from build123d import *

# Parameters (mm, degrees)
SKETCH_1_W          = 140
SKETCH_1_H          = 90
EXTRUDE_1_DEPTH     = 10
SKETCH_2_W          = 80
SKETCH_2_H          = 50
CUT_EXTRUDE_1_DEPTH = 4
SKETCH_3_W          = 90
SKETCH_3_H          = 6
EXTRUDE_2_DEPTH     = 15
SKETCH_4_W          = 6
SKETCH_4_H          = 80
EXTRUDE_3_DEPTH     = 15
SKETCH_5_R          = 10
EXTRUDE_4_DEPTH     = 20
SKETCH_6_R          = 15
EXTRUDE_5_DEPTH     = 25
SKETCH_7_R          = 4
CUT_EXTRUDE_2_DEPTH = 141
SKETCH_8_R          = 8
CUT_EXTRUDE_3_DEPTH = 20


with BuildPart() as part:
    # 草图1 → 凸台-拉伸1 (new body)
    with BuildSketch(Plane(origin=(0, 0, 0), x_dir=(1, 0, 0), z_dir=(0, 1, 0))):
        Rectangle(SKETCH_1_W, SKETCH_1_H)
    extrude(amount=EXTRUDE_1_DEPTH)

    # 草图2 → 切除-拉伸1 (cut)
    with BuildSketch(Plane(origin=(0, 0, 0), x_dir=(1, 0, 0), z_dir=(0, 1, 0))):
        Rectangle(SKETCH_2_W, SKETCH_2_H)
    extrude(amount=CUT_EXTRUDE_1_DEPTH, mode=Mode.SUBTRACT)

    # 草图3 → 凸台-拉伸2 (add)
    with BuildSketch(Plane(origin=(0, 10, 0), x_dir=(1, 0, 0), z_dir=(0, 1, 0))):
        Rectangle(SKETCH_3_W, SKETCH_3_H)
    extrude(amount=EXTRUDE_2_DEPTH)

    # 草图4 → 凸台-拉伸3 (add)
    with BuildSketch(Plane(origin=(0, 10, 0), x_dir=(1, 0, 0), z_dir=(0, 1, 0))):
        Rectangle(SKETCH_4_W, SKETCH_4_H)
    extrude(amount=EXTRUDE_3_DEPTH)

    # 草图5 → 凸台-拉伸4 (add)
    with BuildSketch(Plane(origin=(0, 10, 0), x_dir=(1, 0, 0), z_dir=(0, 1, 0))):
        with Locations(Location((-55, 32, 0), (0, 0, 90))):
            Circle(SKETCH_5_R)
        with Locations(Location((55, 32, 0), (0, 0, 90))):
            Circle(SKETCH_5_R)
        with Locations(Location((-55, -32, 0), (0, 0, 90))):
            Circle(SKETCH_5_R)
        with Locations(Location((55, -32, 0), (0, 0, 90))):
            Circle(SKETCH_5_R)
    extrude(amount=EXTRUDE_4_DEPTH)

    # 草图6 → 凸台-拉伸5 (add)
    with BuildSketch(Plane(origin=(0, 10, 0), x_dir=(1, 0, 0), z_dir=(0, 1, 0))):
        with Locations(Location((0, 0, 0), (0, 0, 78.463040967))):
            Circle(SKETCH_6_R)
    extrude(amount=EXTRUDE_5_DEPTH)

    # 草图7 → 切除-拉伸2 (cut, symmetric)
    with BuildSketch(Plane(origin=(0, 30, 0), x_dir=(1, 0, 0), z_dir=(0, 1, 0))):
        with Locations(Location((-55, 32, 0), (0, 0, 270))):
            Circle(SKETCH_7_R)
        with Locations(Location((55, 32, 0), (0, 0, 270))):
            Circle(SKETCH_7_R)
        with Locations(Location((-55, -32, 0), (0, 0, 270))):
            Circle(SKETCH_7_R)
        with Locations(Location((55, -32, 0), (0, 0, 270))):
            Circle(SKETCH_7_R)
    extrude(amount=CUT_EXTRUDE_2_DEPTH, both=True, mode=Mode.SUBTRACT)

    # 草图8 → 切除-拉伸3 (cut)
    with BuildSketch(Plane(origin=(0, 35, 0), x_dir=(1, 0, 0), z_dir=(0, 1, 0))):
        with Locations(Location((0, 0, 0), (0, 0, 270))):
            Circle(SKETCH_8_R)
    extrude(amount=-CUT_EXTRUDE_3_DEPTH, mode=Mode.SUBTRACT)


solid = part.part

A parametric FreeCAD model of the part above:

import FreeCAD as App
import Part
import Sketcher
from FreeCAD import Vector

doc = App.newDocument("Part")
body = doc.addObject("PartDesign::Body", "Body")

sketch1 = doc.addObject("Sketcher::SketchObject", "Sketch")
body.addObject(sketch1)
sketch1.AttachmentSupport = (doc.XZ_Plane, [""])
sketch1.MapMode = "FlatFace"
sketch1.addGeometry([
    Part.LineSegment(Vector(-70, -45, 0), Vector(-70, 45, 0)),
    Part.LineSegment(Vector(-70, 45, 0), Vector(70, 45, 0)),
    Part.LineSegment(Vector(70, 45, 0), Vector(70, -45, 0)),
    Part.LineSegment(Vector(70, -45, 0), Vector(-70, -45, 0)),
], False)
sketch1.addConstraint([
    Sketcher.Constraint("Coincident", 0, 2, 1, 1),
    Sketcher.Constraint("Coincident", 1, 2, 2, 1),
    Sketcher.Constraint("Coincident", 2, 2, 3, 1),
    Sketcher.Constraint("Coincident", 3, 2, 0, 1),
    Sketcher.Constraint("Vertical", 0),
    Sketcher.Constraint("Horizontal", 1),
    Sketcher.Constraint("Vertical", 2),
    Sketcher.Constraint("Horizontal", 3),
    Sketcher.Constraint("Symmetric", 0, 2, 2, 2, -1, 1),
    Sketcher.Constraint("DistanceX", 1, 1, 1, 2, 140.0),
    Sketcher.Constraint("DistanceY", 0, 1, 0, 2, 90.0),
])
pad1 = doc.addObject("PartDesign::Pad", "Pad")
body.addObject(pad1)
pad1.Profile = sketch1
pad1.Length = 10
pad1.Reversed = True

sketch2 = doc.addObject("Sketcher::SketchObject", "Sketch001")
body.addObject(sketch2)
sketch2.AttachmentSupport = (doc.XZ_Plane, [""])
sketch2.MapMode = "FlatFace"
sketch2.addGeometry([
    Part.LineSegment(Vector(-40, -25, 0), Vector(-40, 25, 0)),
    Part.LineSegment(Vector(-40, 25, 0), Vector(40, 25, 0)),
    Part.LineSegment(Vector(40, 25, 0), Vector(40, -25, 0)),
    Part.LineSegment(Vector(40, -25, 0), Vector(-40, -25, 0)),
], False)
sketch2.addConstraint([
    Sketcher.Constraint("Coincident", 0, 2, 1, 1),
    Sketcher.Constraint("Coincident", 1, 2, 2, 1),
    Sketcher.Constraint("Coincident", 2, 2, 3, 1),
    Sketcher.Constraint("Coincident", 3, 2, 0, 1),
    Sketcher.Constraint("Vertical", 0),
    Sketcher.Constraint("Horizontal", 1),
    Sketcher.Constraint("Vertical", 2),
    Sketcher.Constraint("Horizontal", 3),
    Sketcher.Constraint("Symmetric", 0, 2, 2, 2, -1, 1),
    Sketcher.Constraint("DistanceX", 1, 1, 1, 2, 80.0),
    Sketcher.Constraint("DistanceY", 0, 1, 0, 2, 50.0),
])
pocket1 = doc.addObject("PartDesign::Pocket", "Pocket")
body.addObject(pocket1)
pocket1.Profile = sketch2
pocket1.Length = 4

sketch3 = doc.addObject("Sketcher::SketchObject", "Sketch002")
body.addObject(sketch3)
sketch3.AttachmentSupport = (doc.XZ_Plane, [""])
sketch3.MapMode = "FlatFace"
sketch3.AttachmentOffset = App.Placement(Vector(0, 0, -10), App.Rotation())
sketch3.addGeometry([
    Part.LineSegment(Vector(-45, -3, 0), Vector(-45, 3, 0)),
    Part.LineSegment(Vector(-45, 3, 0), Vector(45, 3, 0)),
    Part.LineSegment(Vector(45, 3, 0), Vector(45, -3, 0)),
    Part.LineSegment(Vector(45, -3, 0), Vector(-45, -3, 0)),
], False)
sketch3.addConstraint([
    Sketcher.Constraint("Coincident", 0, 2, 1, 1),
    Sketcher.Constraint("Coincident", 1, 2, 2, 1),
    Sketcher.Constraint("Coincident", 2, 2, 3, 1),
    Sketcher.Constraint("Coincident", 3, 2, 0, 1),
    Sketcher.Constraint("Vertical", 0),
    Sketcher.Constraint("Horizontal", 1),
    Sketcher.Constraint("Vertical", 2),
    Sketcher.Constraint("Horizontal", 3),
    Sketcher.Constraint("Symmetric", 0, 2, 2, 2, -1, 1),
    Sketcher.Constraint("DistanceX", 1, 1, 1, 2, 90.0),
    Sketcher.Constraint("DistanceY", 0, 1, 0, 2, 6.0),
])
pad2 = doc.addObject("PartDesign::Pad", "Pad001")
body.addObject(pad2)
pad2.Profile = sketch3
pad2.Length = 15
pad2.Reversed = True

sketch4 = doc.addObject("Sketcher::SketchObject", "Sketch003")
body.addObject(sketch4)
sketch4.AttachmentSupport = (doc.XZ_Plane, [""])
sketch4.MapMode = "FlatFace"
sketch4.AttachmentOffset = App.Placement(Vector(0, 0, -10), App.Rotation())
sketch4.addGeometry([
    Part.LineSegment(Vector(-3, -40, 0), Vector(-3, 40, 0)),
    Part.LineSegment(Vector(-3, 40, 0), Vector(3, 40, 0)),
    Part.LineSegment(Vector(3, 40, 0), Vector(3, -40, 0)),
    Part.LineSegment(Vector(3, -40, 0), Vector(-3, -40, 0)),
], False)
sketch4.addConstraint([
    Sketcher.Constraint("Coincident", 0, 2, 1, 1),
    Sketcher.Constraint("Coincident", 1, 2, 2, 1),
    Sketcher.Constraint("Coincident", 2, 2, 3, 1),
    Sketcher.Constraint("Coincident", 3, 2, 0, 1),
    Sketcher.Constraint("Vertical", 0),
    Sketcher.Constraint("Horizontal", 1),
    Sketcher.Constraint("Vertical", 2),
    Sketcher.Constraint("Horizontal", 3),
    Sketcher.Constraint("Symmetric", 0, 2, 2, 2, -1, 1),
    Sketcher.Constraint("DistanceX", 1, 1, 1, 2, 6.0),
    Sketcher.Constraint("DistanceY", 0, 1, 0, 2, 80.0),
])
pad3 = doc.addObject("PartDesign::Pad", "Pad002")
body.addObject(pad3)
pad3.Profile = sketch4
pad3.Length = 15
pad3.Reversed = True

sketch5 = doc.addObject("Sketcher::SketchObject", "Sketch004")
body.addObject(sketch5)
sketch5.AttachmentSupport = (doc.XZ_Plane, [""])
sketch5.MapMode = "FlatFace"
sketch5.AttachmentOffset = App.Placement(Vector(0, 0, -10), App.Rotation())
sketch5.addGeometry([
    Part.Circle(Vector(-55, -32, 0), Vector(0, 0, 1), 10),
    Part.Circle(Vector(55, -32, 0), Vector(0, 0, 1), 10),
    Part.Circle(Vector(-55, 32, 0), Vector(0, 0, 1), 10),
    Part.Circle(Vector(55, 32, 0), Vector(0, 0, 1), 10),
], False)
sketch5.addConstraint([
    Sketcher.Constraint("Equal", 0, 1),
    Sketcher.Constraint("Equal", 1, 2),
    Sketcher.Constraint("Equal", 2, 3),
    Sketcher.Constraint("Symmetric", 1, 3, 2, 3, -1, 1),
    Sketcher.Constraint("Symmetric", 0, 3, 3, 3, -1, 1),
    Sketcher.Constraint("Symmetric", 0, 3, 1, 3, -2),
    Sketcher.Constraint("Diameter", 0, 20.0),
    Sketcher.Constraint("DistanceX", 0, 3, -1, 1, 55.0),
    Sketcher.Constraint("DistanceY", 0, 3, -1, 1, 32.0),
])
pad4 = doc.addObject("PartDesign::Pad", "Pad003")
body.addObject(pad4)
pad4.Profile = sketch5
pad4.Length = 20
pad4.Reversed = True

sketch6 = doc.addObject("Sketcher::SketchObject", "Sketch005")
body.addObject(sketch6)
sketch6.AttachmentSupport = (doc.XZ_Plane, [""])
sketch6.MapMode = "FlatFace"
sketch6.AttachmentOffset = App.Placement(Vector(0, 0, -10), App.Rotation())
sketch6.addGeometry(Part.Circle(Vector(0, 0, 0), Vector(0, 0, 1), 15), False)
sketch6.addConstraint([
    Sketcher.Constraint("Coincident", 0, 3, -1, 1),
    Sketcher.Constraint("Diameter", 0, 30.0),
])
pad5 = doc.addObject("PartDesign::Pad", "Pad004")
body.addObject(pad5)
pad5.Profile = sketch6
pad5.Length = 25
pad5.Reversed = True

sketch7 = doc.addObject("Sketcher::SketchObject", "Sketch006")
body.addObject(sketch7)
sketch7.AttachmentSupport = (doc.XZ_Plane, [""])
sketch7.MapMode = "FlatFace"
sketch7.AttachmentOffset = App.Placement(Vector(0, 0, -30), App.Rotation())
sketch7.addGeometry([
    Part.Circle(Vector(-55, -32, 0), Vector(0, 0, 1), 4),
    Part.Circle(Vector(55, -32, 0), Vector(0, 0, 1), 4),
    Part.Circle(Vector(-55, 32, 0), Vector(0, 0, 1), 4),
    Part.Circle(Vector(55, 32, 0), Vector(0, 0, 1), 4),
], False)
sketch7.addConstraint([
    Sketcher.Constraint("Equal", 0, 1),
    Sketcher.Constraint("Equal", 1, 2),
    Sketcher.Constraint("Equal", 2, 3),
    Sketcher.Constraint("Symmetric", 1, 3, 2, 3, -1, 1),
    Sketcher.Constraint("Symmetric", 0, 3, 3, 3, -1, 1),
    Sketcher.Constraint("Symmetric", 0, 3, 1, 3, -2),
    Sketcher.Constraint("Diameter", 0, 8.0),
    Sketcher.Constraint("DistanceX", 0, 3, -1, 1, 55.0),
    Sketcher.Constraint("DistanceY", 0, 3, -1, 1, 32.0),
])
pocket2 = doc.addObject("PartDesign::Pocket", "Pocket001")
body.addObject(pocket2)
pocket2.Profile = sketch7
pocket2.Length = 282
pocket2.Midplane = True

sketch8 = doc.addObject("Sketcher::SketchObject", "Sketch007")
body.addObject(sketch8)
sketch8.AttachmentSupport = (doc.XZ_Plane, [""])
sketch8.MapMode = "FlatFace"
sketch8.AttachmentOffset = App.Placement(Vector(0, 0, -35), App.Rotation())
sketch8.addGeometry(Part.Circle(Vector(0, 0, 0), Vector(0, 0, 1), 8), False)
sketch8.addConstraint([
    Sketcher.Constraint("Coincident", 0, 3, -1, 1),
    Sketcher.Constraint("Diameter", 0, 16.0),
])
pocket3 = doc.addObject("PartDesign::Pocket", "Pocket002")
body.addObject(pocket3)
pocket3.Profile = sketch8
pocket3.Length = 20
pocket3.Reversed = True

doc.recompute()
